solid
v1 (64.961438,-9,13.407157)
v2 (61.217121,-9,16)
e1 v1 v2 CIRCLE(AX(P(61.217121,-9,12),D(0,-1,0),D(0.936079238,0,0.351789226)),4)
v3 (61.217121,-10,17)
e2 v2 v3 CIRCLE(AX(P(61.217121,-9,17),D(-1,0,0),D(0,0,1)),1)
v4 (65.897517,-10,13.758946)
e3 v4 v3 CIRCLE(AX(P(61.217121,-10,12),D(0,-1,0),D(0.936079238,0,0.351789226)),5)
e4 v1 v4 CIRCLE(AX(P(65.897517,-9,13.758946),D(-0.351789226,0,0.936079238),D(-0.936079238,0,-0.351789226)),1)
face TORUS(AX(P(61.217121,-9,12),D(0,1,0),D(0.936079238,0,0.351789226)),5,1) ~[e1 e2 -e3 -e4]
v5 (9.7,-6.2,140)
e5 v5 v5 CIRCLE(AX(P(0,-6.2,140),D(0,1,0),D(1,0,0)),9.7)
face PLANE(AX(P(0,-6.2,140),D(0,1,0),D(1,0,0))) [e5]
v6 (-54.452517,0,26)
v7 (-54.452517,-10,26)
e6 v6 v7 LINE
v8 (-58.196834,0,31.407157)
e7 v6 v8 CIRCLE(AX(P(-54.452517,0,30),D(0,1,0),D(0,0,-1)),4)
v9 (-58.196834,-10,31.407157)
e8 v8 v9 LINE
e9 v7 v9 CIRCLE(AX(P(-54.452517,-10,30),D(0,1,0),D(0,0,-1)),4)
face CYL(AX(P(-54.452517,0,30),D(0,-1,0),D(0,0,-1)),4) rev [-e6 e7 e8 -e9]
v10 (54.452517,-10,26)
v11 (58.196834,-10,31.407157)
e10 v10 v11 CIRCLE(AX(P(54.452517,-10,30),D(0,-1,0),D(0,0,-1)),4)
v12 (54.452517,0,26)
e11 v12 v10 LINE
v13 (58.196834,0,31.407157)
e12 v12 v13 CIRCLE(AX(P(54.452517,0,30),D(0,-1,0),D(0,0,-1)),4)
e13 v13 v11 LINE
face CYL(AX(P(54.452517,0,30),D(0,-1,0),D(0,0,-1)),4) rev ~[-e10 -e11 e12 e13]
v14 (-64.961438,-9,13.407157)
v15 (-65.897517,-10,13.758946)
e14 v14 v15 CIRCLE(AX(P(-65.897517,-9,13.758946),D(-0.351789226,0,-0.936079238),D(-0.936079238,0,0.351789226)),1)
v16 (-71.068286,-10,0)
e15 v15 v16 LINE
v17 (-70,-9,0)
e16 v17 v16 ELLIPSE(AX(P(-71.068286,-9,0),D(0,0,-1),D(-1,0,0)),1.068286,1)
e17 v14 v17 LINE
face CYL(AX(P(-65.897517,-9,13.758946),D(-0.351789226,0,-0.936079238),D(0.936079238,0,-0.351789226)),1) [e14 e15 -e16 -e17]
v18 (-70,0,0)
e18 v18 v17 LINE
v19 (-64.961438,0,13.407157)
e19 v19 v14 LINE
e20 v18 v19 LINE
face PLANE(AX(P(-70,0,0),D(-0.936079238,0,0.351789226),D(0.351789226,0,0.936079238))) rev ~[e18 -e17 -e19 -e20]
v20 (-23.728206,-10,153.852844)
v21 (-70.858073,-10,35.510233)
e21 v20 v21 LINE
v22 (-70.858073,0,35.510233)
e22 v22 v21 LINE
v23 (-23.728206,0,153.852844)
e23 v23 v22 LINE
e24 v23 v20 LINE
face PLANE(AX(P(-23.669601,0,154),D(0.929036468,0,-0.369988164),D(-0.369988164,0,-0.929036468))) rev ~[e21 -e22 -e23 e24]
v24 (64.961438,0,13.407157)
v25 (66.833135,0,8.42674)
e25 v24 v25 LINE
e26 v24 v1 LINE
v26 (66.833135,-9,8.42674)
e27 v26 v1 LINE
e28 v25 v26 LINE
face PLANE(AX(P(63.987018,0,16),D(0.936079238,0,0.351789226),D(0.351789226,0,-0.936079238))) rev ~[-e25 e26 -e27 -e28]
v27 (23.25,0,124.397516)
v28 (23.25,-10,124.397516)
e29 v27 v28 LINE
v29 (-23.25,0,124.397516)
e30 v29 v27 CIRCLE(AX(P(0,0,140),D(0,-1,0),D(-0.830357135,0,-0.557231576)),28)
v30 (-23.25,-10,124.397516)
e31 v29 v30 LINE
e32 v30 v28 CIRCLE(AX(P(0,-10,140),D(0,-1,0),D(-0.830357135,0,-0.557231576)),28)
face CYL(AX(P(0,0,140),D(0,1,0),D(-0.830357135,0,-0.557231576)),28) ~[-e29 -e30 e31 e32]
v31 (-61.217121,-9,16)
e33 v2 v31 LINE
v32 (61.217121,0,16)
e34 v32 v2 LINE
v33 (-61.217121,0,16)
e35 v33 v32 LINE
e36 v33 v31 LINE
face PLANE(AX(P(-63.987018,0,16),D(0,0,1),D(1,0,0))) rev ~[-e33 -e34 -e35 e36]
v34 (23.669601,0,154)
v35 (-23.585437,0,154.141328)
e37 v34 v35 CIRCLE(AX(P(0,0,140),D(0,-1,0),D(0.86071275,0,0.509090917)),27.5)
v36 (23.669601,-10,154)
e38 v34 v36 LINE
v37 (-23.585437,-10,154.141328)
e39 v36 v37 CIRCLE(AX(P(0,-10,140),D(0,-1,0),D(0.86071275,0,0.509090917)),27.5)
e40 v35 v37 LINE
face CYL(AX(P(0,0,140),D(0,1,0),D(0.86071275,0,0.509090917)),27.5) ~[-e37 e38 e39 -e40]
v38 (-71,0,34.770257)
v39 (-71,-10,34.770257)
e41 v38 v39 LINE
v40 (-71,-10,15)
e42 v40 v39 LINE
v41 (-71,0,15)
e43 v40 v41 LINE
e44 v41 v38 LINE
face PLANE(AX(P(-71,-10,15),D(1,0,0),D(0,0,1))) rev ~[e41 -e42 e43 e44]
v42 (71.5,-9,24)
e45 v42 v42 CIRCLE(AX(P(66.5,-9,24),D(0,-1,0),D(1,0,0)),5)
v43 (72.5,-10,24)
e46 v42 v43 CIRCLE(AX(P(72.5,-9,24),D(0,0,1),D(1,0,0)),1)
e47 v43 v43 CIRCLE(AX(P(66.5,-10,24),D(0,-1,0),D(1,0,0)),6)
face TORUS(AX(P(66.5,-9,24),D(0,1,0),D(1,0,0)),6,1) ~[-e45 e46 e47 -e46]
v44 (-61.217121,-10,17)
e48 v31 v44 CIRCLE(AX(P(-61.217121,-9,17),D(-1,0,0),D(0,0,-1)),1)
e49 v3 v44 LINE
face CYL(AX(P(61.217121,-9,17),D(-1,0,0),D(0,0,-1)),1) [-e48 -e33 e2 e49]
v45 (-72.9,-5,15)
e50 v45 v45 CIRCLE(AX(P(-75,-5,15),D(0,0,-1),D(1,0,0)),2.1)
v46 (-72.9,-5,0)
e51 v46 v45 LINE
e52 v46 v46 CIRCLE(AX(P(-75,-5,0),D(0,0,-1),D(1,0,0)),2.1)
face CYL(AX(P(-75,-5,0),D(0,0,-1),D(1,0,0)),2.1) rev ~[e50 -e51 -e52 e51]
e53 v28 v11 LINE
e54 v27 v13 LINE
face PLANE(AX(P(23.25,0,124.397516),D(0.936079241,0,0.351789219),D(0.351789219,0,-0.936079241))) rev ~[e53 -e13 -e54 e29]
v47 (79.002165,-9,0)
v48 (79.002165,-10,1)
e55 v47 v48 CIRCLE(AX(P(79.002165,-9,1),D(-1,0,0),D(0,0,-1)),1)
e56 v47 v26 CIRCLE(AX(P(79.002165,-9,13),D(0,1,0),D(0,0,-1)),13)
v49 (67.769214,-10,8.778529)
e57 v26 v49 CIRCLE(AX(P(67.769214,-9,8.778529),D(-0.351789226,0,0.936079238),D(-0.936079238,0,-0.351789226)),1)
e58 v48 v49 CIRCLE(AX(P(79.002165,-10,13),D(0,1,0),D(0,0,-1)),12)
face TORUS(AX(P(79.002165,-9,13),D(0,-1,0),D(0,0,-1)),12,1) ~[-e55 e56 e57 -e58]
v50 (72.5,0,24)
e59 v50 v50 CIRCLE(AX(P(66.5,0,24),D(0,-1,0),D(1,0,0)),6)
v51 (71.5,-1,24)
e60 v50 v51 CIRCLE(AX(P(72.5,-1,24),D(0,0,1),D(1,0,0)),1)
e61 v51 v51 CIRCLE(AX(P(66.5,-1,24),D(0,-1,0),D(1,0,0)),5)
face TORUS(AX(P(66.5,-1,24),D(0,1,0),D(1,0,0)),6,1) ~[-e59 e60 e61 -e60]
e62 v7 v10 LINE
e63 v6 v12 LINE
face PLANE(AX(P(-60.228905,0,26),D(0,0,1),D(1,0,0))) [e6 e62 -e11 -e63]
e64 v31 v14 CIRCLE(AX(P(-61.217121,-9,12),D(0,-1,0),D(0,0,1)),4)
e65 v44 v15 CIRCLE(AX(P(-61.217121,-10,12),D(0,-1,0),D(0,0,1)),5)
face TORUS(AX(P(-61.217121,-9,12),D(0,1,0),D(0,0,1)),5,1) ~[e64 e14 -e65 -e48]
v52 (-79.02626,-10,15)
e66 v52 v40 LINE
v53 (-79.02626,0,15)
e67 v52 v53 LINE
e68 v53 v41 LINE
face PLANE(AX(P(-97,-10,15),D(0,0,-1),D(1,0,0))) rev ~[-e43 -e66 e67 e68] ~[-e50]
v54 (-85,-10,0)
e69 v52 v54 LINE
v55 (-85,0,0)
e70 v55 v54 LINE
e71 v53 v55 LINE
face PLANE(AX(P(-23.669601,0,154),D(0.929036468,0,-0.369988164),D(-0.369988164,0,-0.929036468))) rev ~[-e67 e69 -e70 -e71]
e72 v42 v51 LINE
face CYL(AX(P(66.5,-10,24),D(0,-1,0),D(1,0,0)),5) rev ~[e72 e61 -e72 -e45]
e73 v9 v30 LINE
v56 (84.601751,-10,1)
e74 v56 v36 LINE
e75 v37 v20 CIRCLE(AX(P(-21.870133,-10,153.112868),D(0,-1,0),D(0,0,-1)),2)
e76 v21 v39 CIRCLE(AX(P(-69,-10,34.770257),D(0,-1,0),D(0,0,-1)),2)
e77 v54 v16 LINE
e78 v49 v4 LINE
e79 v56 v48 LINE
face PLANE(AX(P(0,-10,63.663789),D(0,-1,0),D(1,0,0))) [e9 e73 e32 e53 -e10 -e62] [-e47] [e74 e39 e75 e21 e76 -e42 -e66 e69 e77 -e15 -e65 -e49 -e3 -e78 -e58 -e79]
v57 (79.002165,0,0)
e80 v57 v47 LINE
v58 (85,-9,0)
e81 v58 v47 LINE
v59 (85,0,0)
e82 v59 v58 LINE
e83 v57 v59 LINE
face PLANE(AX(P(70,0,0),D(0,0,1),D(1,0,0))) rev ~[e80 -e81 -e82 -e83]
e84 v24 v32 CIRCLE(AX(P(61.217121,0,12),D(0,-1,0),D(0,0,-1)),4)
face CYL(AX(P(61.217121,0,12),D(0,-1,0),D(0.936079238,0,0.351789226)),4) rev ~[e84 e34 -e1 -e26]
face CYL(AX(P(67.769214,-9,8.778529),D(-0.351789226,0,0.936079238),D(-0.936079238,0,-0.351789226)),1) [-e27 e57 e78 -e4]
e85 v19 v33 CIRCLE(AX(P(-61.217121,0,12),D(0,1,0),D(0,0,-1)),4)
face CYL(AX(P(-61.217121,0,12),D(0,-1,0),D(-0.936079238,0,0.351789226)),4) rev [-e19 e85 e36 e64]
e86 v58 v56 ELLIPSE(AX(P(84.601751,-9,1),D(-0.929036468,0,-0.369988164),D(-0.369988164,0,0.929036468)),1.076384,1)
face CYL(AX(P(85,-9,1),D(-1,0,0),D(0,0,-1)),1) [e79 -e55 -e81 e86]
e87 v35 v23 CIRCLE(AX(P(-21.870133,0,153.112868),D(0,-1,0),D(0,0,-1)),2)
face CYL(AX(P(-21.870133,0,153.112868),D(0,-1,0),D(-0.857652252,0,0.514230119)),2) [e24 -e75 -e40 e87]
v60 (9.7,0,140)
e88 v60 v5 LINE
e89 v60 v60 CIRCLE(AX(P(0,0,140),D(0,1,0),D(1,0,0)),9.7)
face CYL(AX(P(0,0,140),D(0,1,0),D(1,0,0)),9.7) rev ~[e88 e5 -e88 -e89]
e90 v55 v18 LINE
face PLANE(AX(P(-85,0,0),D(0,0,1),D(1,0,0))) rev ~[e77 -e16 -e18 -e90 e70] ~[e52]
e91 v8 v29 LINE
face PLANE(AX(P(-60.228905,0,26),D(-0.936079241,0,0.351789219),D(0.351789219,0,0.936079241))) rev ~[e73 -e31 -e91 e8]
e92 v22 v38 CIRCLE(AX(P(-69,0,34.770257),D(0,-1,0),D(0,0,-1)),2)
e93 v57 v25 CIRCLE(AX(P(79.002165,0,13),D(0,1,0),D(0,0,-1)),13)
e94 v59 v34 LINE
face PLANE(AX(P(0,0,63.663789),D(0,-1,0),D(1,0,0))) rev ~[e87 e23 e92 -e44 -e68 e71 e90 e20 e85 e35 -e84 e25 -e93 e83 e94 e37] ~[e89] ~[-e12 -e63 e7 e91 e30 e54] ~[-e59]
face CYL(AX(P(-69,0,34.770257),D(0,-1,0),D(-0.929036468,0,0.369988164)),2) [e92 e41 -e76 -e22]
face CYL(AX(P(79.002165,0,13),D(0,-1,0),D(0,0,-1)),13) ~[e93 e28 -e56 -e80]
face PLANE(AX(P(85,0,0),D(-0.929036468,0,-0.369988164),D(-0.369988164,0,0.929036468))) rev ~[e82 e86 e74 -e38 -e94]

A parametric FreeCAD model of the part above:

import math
import FreeCAD as App
import Part
import Sketcher

V = App.Vector


def edges_at(feature, points):
    """Names of the edges that pass closest to the given points."""
    edges = feature.Shape.Edges
    near = lambda p: min(range(len(edges)), key=lambda i: edges[i].distToShape(Part.Vertex(*p))[0])
    return sorted({f"Edge{near(p) + 1}" for p in points})


def add_polygon(sketch, points):
    """Adds a closed chain of lines whose ends are joined by coincident constraints."""
    first, n = sketch.GeometryCount, len(points)
    for a, b in zip(points, points[1:] + points[:1]):
        sketch.addGeometry(Part.LineSegment(App.Vector(*a, 0), App.Vector(*b, 0)), False)
    for i in range(n):
        sketch.addConstraint(Sketcher.Constraint("Coincident", first + i, 2, first + (i + 1) % n, 1))

doc = App.newDocument("Part")
params = doc.addObject("Spreadsheet::Sheet", "Params")
for row, (alias, value) in enumerate([
    ("sketch1_radius", "28 mm"),
    ("sketch1_radius2", "27.5 mm"),
    ("sketch1_width", "15 mm"),
    ("pad1_length", "10 mm"),
    ("fillet_radius", "4 mm"),
    ("sketch2_diameter", "4.2 mm"),
    ("sketch3_width", "26 mm"),
    ("sketch3_height", "25 mm"),
    ("sketch4_diameter", "10 mm"),
    ("fillet2_radius", "2 mm"),
    ("fillet3_radius", "1 mm"),
    ("fillet4_radius", "13 mm"),
    ("fillet5_radius", "1 mm"),
    ("sketch5_diameter", "19.4 mm"),
    ("pocket4_length", "6.2 mm"),
    ("fillet6_radius", "1 mm"),
    ("sketch6_diameter", "19.4 mm"),
    ("pocket5_length", "6.2 mm"),
], start=1):
    params.set(f"A{row}", alias)
    params.set(f"B{row}", "=" + value)
    params.setAlias(f"B{row}", alias)

body = doc.addObject("PartDesign::Body", "Body")

sketch1 = body.newObject("Sketcher::SketchObject", "Sketch")
sketch1.AttachmentSupport = (doc.getObject("XZ_Plane"), [""])
sketch1.MapMode = "FlatFace"
sketch1.addGeometry([
    Part.ArcOfCircle(Part.Circle(V(0, 140, 0), V(0, 0, 1), 28), math.radians(31), math.radians(149)),
    Part.LineSegment(V(-24, 154, 0), V(-85, 0, 0)),
    Part.LineSegment(V(-85, 0, 0), V(-70, 0, 0)),
    Part.LineSegment(V(-70, 0, 0), V(-64, 16, 0)),
    Part.LineSegment(V(-64, 16, 0), V(64, 16, 0)),
    Part.LineSegment(V(64, 16, 0), V(70, 0, 0)),
    Part.LineSegment(V(70, 0, 0), V(85, 0, 0)),
    Part.LineSegment(V(85, 0, 0), V(24, 154, 0)),
    Part.LineSegment(V(60, 26, 0), V(-60, 26, 0)),
    Part.LineSegment(V(-60, 26, 0), V(-23, 124, 0)),
    Part.ArcOfCircle(Part.Circle(V(0, 140, 0), V(0, 0, 1), 28), math.radians(-146), math.radians(-34)),
    Part.LineSegment(V(23, 124, 0), V(60, 26, 0)),
], False)
sketch1.addConstraint([
    Sketcher.Constraint("Coincident", 0, 2, 1, 1),
    Sketcher.Constraint("Coincident", 1, 2, 2, 1),
    Sketcher.Constraint("Coincident", 2, 2, 3, 1),
    Sketcher.Constraint("Coincident", 3, 2, 4, 1),
    Sketcher.Constraint("Coincident", 4, 2, 5, 1),
    Sketcher.Constraint("Coincident", 5, 2, 6, 1),
    Sketcher.Constraint("Coincident", 6, 2, 7, 1),
    Sketcher.Constraint("Coincident", 7, 2, 0, 1),
    Sketcher.Constraint("Coincident", 8, 2, 9, 1),
    Sketcher.Constraint("Coincident", 9, 2, 10, 1),
    Sketcher.Constraint("Coincident", 10, 2, 11, 1),
    Sketcher.Constraint("Coincident", 11, 2, 8, 1),
    Sketcher.Constraint("Horizontal", 2),
    Sketcher.Constraint("Horizontal", 4),
    Sketcher.Constraint("Horizontal", 6),
    Sketcher.Constraint("Horizontal", 8),
    Sketcher.Constraint("Coincident", 10, 3, 0, 3),
    Sketcher.Constraint("Symmetric", 2, 2, 5, 2, -1, 1),
    Sketcher.Constraint("Symmetric", 1, 2, 6, 2, -2),
    Sketcher.Constraint("Symmetric", 0, 2, 7, 2, -2),
    Sketcher.Constraint("Parallel", 3, 9),
    Sketcher.Constraint("Parallel", 5, 11),
    Sketcher.Constraint("Horizontal", 9, 2, 10, 2),
    Sketcher.Constraint("Equal", 3, 5),
    Sketcher.Constraint("Radius", 10, 28.0),
    Sketcher.Constraint("Radius", 0, 27.5),
    Sketcher.Constraint("DistanceX", 2, 1, 2, 2, 15.0),
    Sketcher.Constraint("DistanceY", -1, 1, 0, 3, 140.0),
    Sketcher.Constraint("DistanceY", -1, 1, 0, 2, 154.0),
    Sketcher.Constraint("DistanceX", 1, 2, -1, 1, 85.0),
    Sketcher.Constraint("DistanceY", -1, 1, 3, 2, 16.0),
    Sketcher.Constraint("DistanceY", -1, 1, 8, 2, 26.0),
    Sketcher.Constraint("DistanceX", 9, 2, 10, 2, 46.5),
    Sketcher.Constraint("DistanceX", 8, 2, 8, 1, 120.45781),
])
sketch1.setExpression("Constraints[24]", "Params.sketch1_radius")
sketch1.setExpression("Constraints[25]", "Params.sketch1_radius2")
sketch1.setExpression("Constraints[26]", "Params.sketch1_width")
pad1 = body.newObject("PartDesign::Pad", "Pad")
pad1.Profile = sketch1
pad1.setExpression("Length", "Params.pad1_length")
doc.recompute()

fillet = body.newObject("PartDesign::Fillet", "Fillet")
fillet.Base = (pad1, edges_at(pad1, [
    (-63.987, -5, 16),
    (-60.229, -5, 26),
    (60.229, -5, 26),
    (63.987, -5, 16),
]))
fillet.setExpression("Radius", "Params.fillet_radius")

sketch2 = body.newObject("Sketcher::SketchObject", "Sketch001")
sketch2.AttachmentSupport = (doc.getObject("XY_Plane"), [""])
sketch2.MapMode = "FlatFace"
sketch2.addGeometry(Part.Circle(V(-75, -5, 0), V(0, 0, 1), 2.1), False)
sketch2.addConstraint([
    Sketcher.Constraint("Diameter", 0, 4.2),
    Sketcher.Constraint("DistanceX", 0, 3, -1, 1, 75.0),
    Sketcher.Constraint("DistanceY", 0, 3, -1, 1, 5.0),
])
sketch2.setExpression("Constraints[0]", "Params.sketch2_diameter")
pocket1 = body.newObject("PartDesign::Pocket", "Pocket")
pocket1.Profile = sketch2
pocket1.Type = "ThroughAll"
pocket1.Reversed = True

sketch3 = body.newObject("Sketcher::SketchObject", "Sketch002")
sketch3.AttachmentSupport = (doc.getObject("XZ_Plane"), [""])
sketch3.MapMode = "FlatFace"
sketch3.AttachmentOffset = App.Placement(V(0, 0, 10), App.Rotation())
add_polygon(sketch3, [(-97, 40), (-97, 15), (-71, 15), (-71, 40)])
sketch3.addConstraint([
    Sketcher.Constraint("Vertical", 0),
    Sketcher.Constraint("Horizontal", 1),
    Sketcher.Constraint("Vertical", 2),
    Sketcher.Constraint("Horizontal", 3),
    Sketcher.Constraint("DistanceX", 1, 1, 1, 2, 26.0),
    Sketcher.Constraint("DistanceY", 0, 2, 0, 1, 25.0),
    Sketcher.Constraint("DistanceX", 0, 2, -1, 1, 97.0),
    Sketcher.Constraint("DistanceY", -1, 1, 0, 2, 15.0),
])
sketch3.setExpression("Constraints[8]", "Params.sketch3_width")
sketch3.setExpression("Constraints[9]", "Params.sketch3_height")
pocket2 = body.newObject("PartDesign::Pocket", "Pocket001")
pocket2.Profile = sketch3
pocket2.Type = "ThroughAll"

sketch4 = body.newObject("Sketcher::SketchObject", "Sketch003")
sketch4.AttachmentSupport = (doc.getObject("XZ_Plane"), [""])
sketch4.MapMode = "FlatFace"
sketch4.AttachmentOffset = App.Placement(V(0, 0, 10), App.Rotation())
sketch4.addGeometry(Part.Circle(V(66, 24, 0), V(0, 0, 1), 5), False)
sketch4.addConstraint([
    Sketcher.Constraint("Diameter", 0, 10.0),
    Sketcher.Constraint("DistanceY", -1, 1, 0, 3, 24.0),
    Sketcher.Constraint("DistanceX", -1, 1, 0, 3, 66.5),
])
sketch4.setExpression("Constraints[0]", "Params.sketch4_diameter")
pocket3 = body.newObject("PartDesign::Pocket", "Pocket002")
pocket3.Profile = sketch4
pocket3.Type = "ThroughAll"
doc.recompute()

fillet2 = body.newObject("PartDesign::Fillet", "Fillet001")
fillet2.Base = (pocket3, edges_at(pocket3, [(-23.67, -5, 154), (-71, -5, 35.154)]))
fillet2.setExpression("Radius", "Params.fillet2_radius")
doc.recompute()

fillet3 = body.newObject("PartDesign::Fillet", "Fillet002")
fillet3.Base = (fillet2, edges_at(fillet2, [(61.5, -10, 24)]))
fillet3.setExpression("Radius", "Params.fillet3_radius")
doc.recompute()

fillet4 = body.newObject("PartDesign::Fillet", "Fillet003")
fillet4.Base = (fillet3, edges_at(fillet3, [(70, -5, 0)]))
fillet4.setExpression("Radius", "Params.fillet4_radius")
doc.recompute()

fillet5 = body.newObject("PartDesign::Fillet", "Fillet004")
fillet5.Base = (fillet4, edges_at(fillet4, [(63.494, -10, 15.289), (65.897, -10, 10.917)]))
fillet5.setExpression("Radius", "Params.fillet5_radius")

sketch5 = body.newObject("Sketcher::SketchObject", "Sketch004")
sketch5.AttachmentSupport = (doc.getObject("XY_Plane"), [""])
sketch5.MapMode = "FlatFace"
sketch5.addGeometry(Part.Circle(V(0, 140, 0), V(0, 0, 1), 10), False)
sketch5.addConstraint([
    Sketcher.Constraint("PointOnObject", 0, 3, -2),
    Sketcher.Constraint("Diameter", 0, 19.4),
    Sketcher.Constraint("DistanceY", -1, 1, 0, 3, 140.0),
])
sketch5.setExpression("Constraints[1]", "Params.sketch5_diameter")
pocket4 = body.newObject("PartDesign::Pocket", "Pocket003")
pocket4.Profile = sketch5
pocket4.setExpression("Length", "Params.pocket4_length")
pocket4.Reversed = True
doc.recompute()

fillet6 = body.newObject("PartDesign::Fillet", "Fillet005")
fillet6.Base = (pocket4, edges_at(pocket4, [(61.5, 0, 24)]))
fillet6.setExpression("Radius", "Params.fillet6_radius")

sketch6 = body.newObject("Sketcher::SketchObject", "Sketch005")
sketch6.AttachmentSupport = (doc.getObject("XZ_Plane"), [""])
sketch6.MapMode = "FlatFace"
sketch6.addGeometry(Part.Circle(V(0, 140, 0), V(0, 0, 1), 10), False)
sketch6.addConstraint([
    Sketcher.Constraint("PointOnObject", 0, 3, -2),
    Sketcher.Constraint("Diameter", 0, 19.4),
    Sketcher.Constraint("DistanceY", -1, 1, 0, 3, 140.0),
])
sketch6.setExpression("Constraints[1]", "Params.sketch6_diameter")
pocket5 = body.newObject("PartDesign::Pocket", "Pocket004")
pocket5.Profile = sketch6
pocket5.setExpression("Length", "Params.pocket5_length")
pocket5.Reversed = True

doc.recompute()
